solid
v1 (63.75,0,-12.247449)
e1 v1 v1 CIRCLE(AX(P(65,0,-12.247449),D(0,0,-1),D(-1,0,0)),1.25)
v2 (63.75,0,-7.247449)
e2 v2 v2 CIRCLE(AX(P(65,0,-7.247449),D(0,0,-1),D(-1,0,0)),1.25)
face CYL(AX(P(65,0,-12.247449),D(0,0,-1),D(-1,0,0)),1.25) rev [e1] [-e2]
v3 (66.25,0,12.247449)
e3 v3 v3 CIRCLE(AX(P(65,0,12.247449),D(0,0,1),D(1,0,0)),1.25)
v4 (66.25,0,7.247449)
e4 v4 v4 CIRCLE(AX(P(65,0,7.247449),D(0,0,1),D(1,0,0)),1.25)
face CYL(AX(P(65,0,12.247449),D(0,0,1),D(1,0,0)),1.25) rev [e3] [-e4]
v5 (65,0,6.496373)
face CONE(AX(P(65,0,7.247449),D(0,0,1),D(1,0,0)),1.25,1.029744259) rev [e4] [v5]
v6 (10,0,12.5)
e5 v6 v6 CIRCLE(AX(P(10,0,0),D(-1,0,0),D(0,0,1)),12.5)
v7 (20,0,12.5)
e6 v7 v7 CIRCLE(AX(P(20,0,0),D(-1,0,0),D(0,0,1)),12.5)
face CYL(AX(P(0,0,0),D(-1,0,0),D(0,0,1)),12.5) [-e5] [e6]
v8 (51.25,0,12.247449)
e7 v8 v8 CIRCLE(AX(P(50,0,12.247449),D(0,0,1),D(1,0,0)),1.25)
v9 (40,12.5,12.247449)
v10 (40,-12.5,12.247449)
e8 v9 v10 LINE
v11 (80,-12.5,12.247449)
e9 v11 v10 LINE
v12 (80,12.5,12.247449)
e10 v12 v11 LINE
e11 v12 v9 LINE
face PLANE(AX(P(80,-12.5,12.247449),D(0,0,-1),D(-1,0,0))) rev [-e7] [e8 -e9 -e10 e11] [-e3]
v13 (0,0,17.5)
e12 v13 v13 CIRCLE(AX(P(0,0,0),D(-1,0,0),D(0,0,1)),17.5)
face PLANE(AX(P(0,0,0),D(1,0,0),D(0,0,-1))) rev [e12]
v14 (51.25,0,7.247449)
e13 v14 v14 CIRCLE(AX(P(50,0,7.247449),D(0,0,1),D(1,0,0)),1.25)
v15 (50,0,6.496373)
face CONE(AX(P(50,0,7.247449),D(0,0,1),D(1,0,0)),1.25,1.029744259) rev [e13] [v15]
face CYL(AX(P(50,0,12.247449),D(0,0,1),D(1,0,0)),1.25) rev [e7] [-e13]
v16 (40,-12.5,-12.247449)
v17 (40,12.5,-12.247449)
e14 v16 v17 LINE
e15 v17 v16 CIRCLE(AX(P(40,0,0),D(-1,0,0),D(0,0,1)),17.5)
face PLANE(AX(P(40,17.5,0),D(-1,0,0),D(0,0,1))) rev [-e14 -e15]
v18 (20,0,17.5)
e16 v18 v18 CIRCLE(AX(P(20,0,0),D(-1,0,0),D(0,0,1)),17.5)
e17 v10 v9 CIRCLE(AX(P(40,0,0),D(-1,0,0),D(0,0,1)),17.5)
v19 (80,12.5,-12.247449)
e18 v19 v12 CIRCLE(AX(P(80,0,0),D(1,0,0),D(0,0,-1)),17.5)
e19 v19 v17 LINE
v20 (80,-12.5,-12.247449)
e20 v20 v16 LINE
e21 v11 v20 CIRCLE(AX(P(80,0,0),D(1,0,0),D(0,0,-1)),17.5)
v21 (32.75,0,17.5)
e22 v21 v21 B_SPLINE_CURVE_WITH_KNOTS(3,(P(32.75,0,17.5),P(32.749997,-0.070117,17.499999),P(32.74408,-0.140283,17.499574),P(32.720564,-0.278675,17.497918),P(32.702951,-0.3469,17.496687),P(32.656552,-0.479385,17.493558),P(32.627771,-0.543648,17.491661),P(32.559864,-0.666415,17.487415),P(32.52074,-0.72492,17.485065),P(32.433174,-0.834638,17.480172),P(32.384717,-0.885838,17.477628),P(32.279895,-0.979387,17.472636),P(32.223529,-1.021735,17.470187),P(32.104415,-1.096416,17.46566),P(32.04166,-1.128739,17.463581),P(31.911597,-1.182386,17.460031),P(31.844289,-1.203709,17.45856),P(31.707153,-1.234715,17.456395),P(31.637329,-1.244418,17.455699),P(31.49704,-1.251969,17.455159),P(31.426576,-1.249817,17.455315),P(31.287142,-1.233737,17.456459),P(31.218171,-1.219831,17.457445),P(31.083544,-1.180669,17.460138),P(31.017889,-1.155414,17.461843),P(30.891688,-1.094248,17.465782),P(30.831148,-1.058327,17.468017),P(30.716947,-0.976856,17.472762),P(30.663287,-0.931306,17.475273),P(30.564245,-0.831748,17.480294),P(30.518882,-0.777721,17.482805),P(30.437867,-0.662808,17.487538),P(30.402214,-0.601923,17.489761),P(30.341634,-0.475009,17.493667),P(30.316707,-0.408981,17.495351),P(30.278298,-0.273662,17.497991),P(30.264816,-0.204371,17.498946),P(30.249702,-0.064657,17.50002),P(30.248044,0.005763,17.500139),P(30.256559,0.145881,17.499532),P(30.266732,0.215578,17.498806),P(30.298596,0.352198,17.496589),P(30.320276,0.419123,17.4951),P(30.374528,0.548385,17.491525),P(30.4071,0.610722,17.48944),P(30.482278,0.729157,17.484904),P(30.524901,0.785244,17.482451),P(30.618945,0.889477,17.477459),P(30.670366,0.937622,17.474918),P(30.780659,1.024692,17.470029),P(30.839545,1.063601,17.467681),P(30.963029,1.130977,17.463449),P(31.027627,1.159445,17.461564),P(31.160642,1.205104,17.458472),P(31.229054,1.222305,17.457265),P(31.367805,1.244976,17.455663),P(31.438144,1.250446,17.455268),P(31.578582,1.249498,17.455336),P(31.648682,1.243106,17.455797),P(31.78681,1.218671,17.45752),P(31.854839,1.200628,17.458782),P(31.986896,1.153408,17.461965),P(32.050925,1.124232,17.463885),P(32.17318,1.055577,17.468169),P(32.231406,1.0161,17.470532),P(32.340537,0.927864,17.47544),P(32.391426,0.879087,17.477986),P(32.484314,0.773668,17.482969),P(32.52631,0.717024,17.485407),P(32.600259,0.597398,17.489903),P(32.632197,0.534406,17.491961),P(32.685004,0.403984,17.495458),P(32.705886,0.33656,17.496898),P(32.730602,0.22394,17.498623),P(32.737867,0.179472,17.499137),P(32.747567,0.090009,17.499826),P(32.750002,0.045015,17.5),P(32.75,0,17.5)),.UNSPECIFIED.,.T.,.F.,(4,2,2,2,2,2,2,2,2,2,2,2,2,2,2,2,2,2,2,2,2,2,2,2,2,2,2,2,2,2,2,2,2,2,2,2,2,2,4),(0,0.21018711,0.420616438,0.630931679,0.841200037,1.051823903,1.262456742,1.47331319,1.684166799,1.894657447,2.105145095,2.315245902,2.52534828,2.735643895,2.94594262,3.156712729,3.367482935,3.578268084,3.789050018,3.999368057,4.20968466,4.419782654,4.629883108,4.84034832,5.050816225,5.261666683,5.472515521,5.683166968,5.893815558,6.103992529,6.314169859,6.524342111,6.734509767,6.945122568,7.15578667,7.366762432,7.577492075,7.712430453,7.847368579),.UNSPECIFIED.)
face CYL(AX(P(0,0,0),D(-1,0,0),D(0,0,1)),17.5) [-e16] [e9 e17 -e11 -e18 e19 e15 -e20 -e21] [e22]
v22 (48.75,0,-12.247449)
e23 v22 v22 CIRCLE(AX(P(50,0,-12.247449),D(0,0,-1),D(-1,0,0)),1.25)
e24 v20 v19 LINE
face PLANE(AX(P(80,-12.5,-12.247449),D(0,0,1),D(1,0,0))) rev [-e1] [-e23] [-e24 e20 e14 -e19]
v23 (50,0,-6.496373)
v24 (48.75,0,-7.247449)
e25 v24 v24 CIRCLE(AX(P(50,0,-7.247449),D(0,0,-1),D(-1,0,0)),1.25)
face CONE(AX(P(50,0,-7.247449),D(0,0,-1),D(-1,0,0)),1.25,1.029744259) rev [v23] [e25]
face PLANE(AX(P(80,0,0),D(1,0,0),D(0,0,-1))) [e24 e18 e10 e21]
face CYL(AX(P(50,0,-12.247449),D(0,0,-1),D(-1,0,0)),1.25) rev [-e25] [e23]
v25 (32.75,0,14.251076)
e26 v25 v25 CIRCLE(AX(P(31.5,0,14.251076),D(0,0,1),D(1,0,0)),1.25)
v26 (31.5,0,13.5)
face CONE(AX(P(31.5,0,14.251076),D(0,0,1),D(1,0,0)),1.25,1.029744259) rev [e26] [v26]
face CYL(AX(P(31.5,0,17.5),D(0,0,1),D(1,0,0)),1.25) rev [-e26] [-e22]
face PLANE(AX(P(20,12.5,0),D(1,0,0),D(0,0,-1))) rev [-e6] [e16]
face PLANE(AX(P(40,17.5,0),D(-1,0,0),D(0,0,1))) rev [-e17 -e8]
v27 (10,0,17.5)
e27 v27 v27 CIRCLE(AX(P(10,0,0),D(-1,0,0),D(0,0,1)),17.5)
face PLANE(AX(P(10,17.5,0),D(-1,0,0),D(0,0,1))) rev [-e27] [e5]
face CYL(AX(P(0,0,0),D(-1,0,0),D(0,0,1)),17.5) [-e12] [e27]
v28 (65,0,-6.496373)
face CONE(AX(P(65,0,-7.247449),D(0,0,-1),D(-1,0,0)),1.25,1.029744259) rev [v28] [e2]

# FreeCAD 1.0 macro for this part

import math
import FreeCAD as App
import Part
import Sketcher

V = App.Vector


def add_polygon(sketch, points):
    """Adds a closed chain of lines whose ends are joined by coincident constraints."""
    first, n = sketch.GeometryCount, len(points)
    for a, b in zip(points, points[1:] + points[:1]):
        sketch.addGeometry(Part.LineSegment(App.Vector(*a, 0), App.Vector(*b, 0)), False)
    for i in range(n):
        sketch.addConstraint(Sketcher.Constraint("Coincident", first + i, 2, first + (i + 1) % n, 1))

doc = App.newDocument("Part")
params = doc.addObject("Spreadsheet::Sheet", "Params")
for row, (alias, value) in enumerate([
    ("sketch1_width", "40 mm"),
    ("sketch1_width2", "20 mm"),
    ("sketch1_height", "5 mm"),
    ("sketch1_height2", "17.5 mm"),
    ("revolution_angle", "360 deg"),
    ("sketch2_diameter", "2.5 mm"),
    ("hole_diameter", "2.5 mm"),
    ("hole_depth", "3.248924 mm"),
    ("sketch3_radius", "17.5 mm"),
    ("sketch3_width", "25 mm"),
    ("pad1_length", "40 mm"),
    ("sketch4_diameter", "2.5 mm"),
    ("hole2_diameter", "2.5 mm"),
    ("hole2_depth", "5 mm"),
    ("sketch5_diameter", "2.5 mm"),
    ("hole3_diameter", "2.5 mm"),
    ("hole3_depth", "5 mm"),
], start=1):
    params.set(f"A{row}", alias)
    params.set(f"B{row}", "=" + value)
    params.setAlias(f"B{row}", alias)

body = doc.addObject("PartDesign::Body", "Body")

# Sketch on XY plane
sketch1 = body.newObject("Sketcher::SketchObject", "Sketch")
sketch1.AttachmentSupport = (doc.getObject("XY_Plane"), [""])
sketch1.MapMode = "FlatFace"
add_polygon(sketch1, [(0, 17.5), (0, 0), (40, 0), (40, 17.5), (20, 17.5), (20, 12.5), (10, 12.5), (10, 17.5)])  # lines 0-7
sketch1.addConstraint([
    Sketcher.Constraint("Vertical", 0),
    Sketcher.Constraint("Horizontal", 1),
    Sketcher.Constraint("Vertical", 2),
    Sketcher.Constraint("Horizontal", 3),
    Sketcher.Constraint("Vertical", 4),
    Sketcher.Constraint("Horizontal", 5),
    Sketcher.Constraint("Vertical", 6),
    Sketcher.Constraint("Horizontal", 7),
    Sketcher.Constraint("Coincident", 0, 2, -1, 1),
    Sketcher.Constraint("Horizontal", 3, 2, 6, 2),
    Sketcher.Constraint("Equal", 5, 7),
    Sketcher.Constraint("DistanceX", 1, 1, 1, 2, 40.0),
    Sketcher.Constraint("DistanceX", 3, 2, 3, 1, 20.0),
    Sketcher.Constraint("DistanceY", 4, 2, 4, 1, 5.0),
    Sketcher.Constraint("DistanceY", 0, 2, 0, 1, 17.5),
])
sketch1.setExpression("Constraints[19]", "Params.sketch1_width")
sketch1.setExpression("Constraints[20]", "Params.sketch1_width2")
sketch1.setExpression("Constraints[21]", "Params.sketch1_height")
sketch1.setExpression("Constraints[22]", "Params.sketch1_height2")
revolution = body.newObject("PartDesign::Revolution", "Revolution")
revolution.Profile = sketch1
revolution.ReferenceAxis = (sketch1, ["H_Axis"])
revolution.setExpression("Angle", "Params.revolution_angle")

# Sketch on XY plane
sketch2 = body.newObject("Sketcher::SketchObject", "Sketch001")
sketch2.AttachmentSupport = (doc.getObject("XY_Plane"), [""])
sketch2.MapMode = "FlatFace"
sketch2.AttachmentOffset = App.Placement(V(0, 0, 17.5), App.Rotation())
sketch2.addGeometry(Part.Circle(V(31.5, 0, 0), V(0, 0, 1), 1.25), False)
sketch2.addConstraint([
    Sketcher.Constraint("PointOnObject", 0, 3, -1),
    Sketcher.Constraint("Diameter", 0, 2.5),
    Sketcher.Constraint("DistanceX", -1, 1, 0, 3, 31.5),
])
sketch2.setExpression("Constraints[1]", "Params.sketch2_diameter")
doc.recompute()
hole = body.newObject("PartDesign::Hole", "Hole")
hole.Profile = sketch2
hole.ThreadType = "None"
hole.setExpression("Diameter", "Params.hole_diameter")
hole.DepthType = "Dimension"
hole.setExpression("Depth", "Params.hole_depth")
hole.DrillPoint = "Angled"
hole.DrillPointAngle = 118

# Sketch on YZ plane
sketch3 = body.newObject("Sketcher::SketchObject", "Sketch002")
sketch3.AttachmentSupport = (doc.getObject("YZ_Plane"), [""])
sketch3.MapMode = "FlatFace"
sketch3.AttachmentOffset = App.Placement(V(0, 0, 40), App.Rotation())
sketch3.addGeometry([
    Part.LineSegment(V(12.5, 12.247449, 0), V(-12.5, 12.247449, 0)),
    Part.ArcOfCircle(Part.Circle(V(0, 0, 0), V(0, 0, 1), 17.5), math.radians(135.584691), math.radians(224.415309)),
    Part.LineSegment(V(-12.5, -12.247449, 0), V(12.5, -12.247449, 0)),
    Part.ArcOfCircle(Part.Circle(V(0, 0, 0), V(0, 0, 1), 17.5), math.radians(-44.415309), math.radians(44.415309)),
], False)
sketch3.addConstraint([
    Sketcher.Constraint("Coincident", 0, 2, 1, 1),
    Sketcher.Constraint("Coincident", 1, 2, 2, 1),
    Sketcher.Constraint("Coincident", 2, 2, 3, 1),
    Sketcher.Constraint("Coincident", 3, 2, 0, 1),
    Sketcher.Constraint("Horizontal", 0),
    Sketcher.Constraint("Horizontal", 2),
    Sketcher.Constraint("Coincident", 1, 3, -1, 1),
    Sketcher.Constraint("Coincident", 3, 3, -1, 1),
    Sketcher.Constraint("Equal", 1, 3),
    Sketcher.Constraint("Vertical", 0, 2, 1, 2),
    Sketcher.Constraint("Radius", 1, 17.5),
    Sketcher.Constraint("DistanceX", 0, 2, 0, 1, 25.0),
])
sketch3.setExpression("Constraints[10]", "Params.sketch3_radius")
sketch3.setExpression("Constraints[11]", "Params.sketch3_width")
pad1 = body.newObject("PartDesign::Pad", "Pad")
pad1.Profile = sketch3
pad1.setExpression("Length", "Params.pad1_length")

# Sketch on XY plane
sketch4 = body.newObject("Sketcher::SketchObject", "Sketch003")
sketch4.AttachmentSupport = (doc.getObject("XY_Plane"), [""])
sketch4.MapMode = "FlatFace"
sketch4.AttachmentOffset = App.Placement(V(0, 0, 12.247449), App.Rotation())
sketch4.addGeometry([
    Part.Circle(V(50, 0, 0), V(0, 0, 1), 1.25),
    Part.Circle(V(65, 0, 0), V(0, 0, 1), 1.25),
], False)
sketch4.addConstraint([
    Sketcher.Constraint("Equal", 0, 1),
    Sketcher.Constraint("PointOnObject", 0, 3, -1),
    Sketcher.Constraint("PointOnObject", 1, 3, -1),
    Sketcher.Constraint("Diameter", 0, 2.5),
    Sketcher.Constraint("DistanceX", -1, 1, 0, 3, 50.0),
    Sketcher.Constraint("DistanceX", -1, 1, 1, 3, 65.0),
])
sketch4.setExpression("Constraints[3]", "Params.sketch4_diameter")
doc.recompute()
hole2 = body.newObject("PartDesign::Hole", "Hole001")
hole2.Profile = sketch4
hole2.ThreadType = "None"
hole2.setExpression("Diameter", "Params.hole2_diameter")
hole2.DepthType = "Dimension"
hole2.setExpression("Depth", "Params.hole2_depth")
hole2.DrillPoint = "Angled"
hole2.DrillPointAngle = 118

# Sketch on XY plane
sketch5 = body.newObject("Sketcher::SketchObject", "Sketch004")
sketch5.AttachmentSupport = (doc.getObject("XY_Plane"), [""])
sketch5.MapMode = "FlatFace"
sketch5.AttachmentOffset = App.Placement(V(0, 0, -12.247449), App.Rotation())
sketch5.addGeometry([
    Part.Circle(V(65, 0, 0), V(0, 0, 1), 1.25),
    Part.Circle(V(50, 0, 0), V(0, 0, 1), 1.25),
], False)
sketch5.addConstraint([
    Sketcher.Constraint("Equal", 0, 1),
    Sketcher.Constraint("PointOnObject", 0, 3, -1),
    Sketcher.Constraint("PointOnObject", 1, 3, -1),
    Sketcher.Constraint("Diameter", 0, 2.5),
    Sketcher.Constraint("DistanceX", -1, 1, 0, 3, 65.0),
    Sketcher.Constraint("DistanceX", -1, 1, 1, 3, 50.0),
])
sketch5.setExpression("Constraints[3]", "Params.sketch5_diameter")
doc.recompute()
hole3 = body.newObject("PartDesign::Hole", "Hole002")
hole3.Profile = sketch5
hole3.ThreadType = "None"
hole3.setExpression("Diameter", "Params.hole3_diameter")
hole3.DepthType = "Dimension"
hole3.setExpression("Depth", "Params.hole3_depth")
hole3.DrillPoint = "Angled"
hole3.DrillPointAngle = 118
hole3.Reversed = True

doc.recompute()
